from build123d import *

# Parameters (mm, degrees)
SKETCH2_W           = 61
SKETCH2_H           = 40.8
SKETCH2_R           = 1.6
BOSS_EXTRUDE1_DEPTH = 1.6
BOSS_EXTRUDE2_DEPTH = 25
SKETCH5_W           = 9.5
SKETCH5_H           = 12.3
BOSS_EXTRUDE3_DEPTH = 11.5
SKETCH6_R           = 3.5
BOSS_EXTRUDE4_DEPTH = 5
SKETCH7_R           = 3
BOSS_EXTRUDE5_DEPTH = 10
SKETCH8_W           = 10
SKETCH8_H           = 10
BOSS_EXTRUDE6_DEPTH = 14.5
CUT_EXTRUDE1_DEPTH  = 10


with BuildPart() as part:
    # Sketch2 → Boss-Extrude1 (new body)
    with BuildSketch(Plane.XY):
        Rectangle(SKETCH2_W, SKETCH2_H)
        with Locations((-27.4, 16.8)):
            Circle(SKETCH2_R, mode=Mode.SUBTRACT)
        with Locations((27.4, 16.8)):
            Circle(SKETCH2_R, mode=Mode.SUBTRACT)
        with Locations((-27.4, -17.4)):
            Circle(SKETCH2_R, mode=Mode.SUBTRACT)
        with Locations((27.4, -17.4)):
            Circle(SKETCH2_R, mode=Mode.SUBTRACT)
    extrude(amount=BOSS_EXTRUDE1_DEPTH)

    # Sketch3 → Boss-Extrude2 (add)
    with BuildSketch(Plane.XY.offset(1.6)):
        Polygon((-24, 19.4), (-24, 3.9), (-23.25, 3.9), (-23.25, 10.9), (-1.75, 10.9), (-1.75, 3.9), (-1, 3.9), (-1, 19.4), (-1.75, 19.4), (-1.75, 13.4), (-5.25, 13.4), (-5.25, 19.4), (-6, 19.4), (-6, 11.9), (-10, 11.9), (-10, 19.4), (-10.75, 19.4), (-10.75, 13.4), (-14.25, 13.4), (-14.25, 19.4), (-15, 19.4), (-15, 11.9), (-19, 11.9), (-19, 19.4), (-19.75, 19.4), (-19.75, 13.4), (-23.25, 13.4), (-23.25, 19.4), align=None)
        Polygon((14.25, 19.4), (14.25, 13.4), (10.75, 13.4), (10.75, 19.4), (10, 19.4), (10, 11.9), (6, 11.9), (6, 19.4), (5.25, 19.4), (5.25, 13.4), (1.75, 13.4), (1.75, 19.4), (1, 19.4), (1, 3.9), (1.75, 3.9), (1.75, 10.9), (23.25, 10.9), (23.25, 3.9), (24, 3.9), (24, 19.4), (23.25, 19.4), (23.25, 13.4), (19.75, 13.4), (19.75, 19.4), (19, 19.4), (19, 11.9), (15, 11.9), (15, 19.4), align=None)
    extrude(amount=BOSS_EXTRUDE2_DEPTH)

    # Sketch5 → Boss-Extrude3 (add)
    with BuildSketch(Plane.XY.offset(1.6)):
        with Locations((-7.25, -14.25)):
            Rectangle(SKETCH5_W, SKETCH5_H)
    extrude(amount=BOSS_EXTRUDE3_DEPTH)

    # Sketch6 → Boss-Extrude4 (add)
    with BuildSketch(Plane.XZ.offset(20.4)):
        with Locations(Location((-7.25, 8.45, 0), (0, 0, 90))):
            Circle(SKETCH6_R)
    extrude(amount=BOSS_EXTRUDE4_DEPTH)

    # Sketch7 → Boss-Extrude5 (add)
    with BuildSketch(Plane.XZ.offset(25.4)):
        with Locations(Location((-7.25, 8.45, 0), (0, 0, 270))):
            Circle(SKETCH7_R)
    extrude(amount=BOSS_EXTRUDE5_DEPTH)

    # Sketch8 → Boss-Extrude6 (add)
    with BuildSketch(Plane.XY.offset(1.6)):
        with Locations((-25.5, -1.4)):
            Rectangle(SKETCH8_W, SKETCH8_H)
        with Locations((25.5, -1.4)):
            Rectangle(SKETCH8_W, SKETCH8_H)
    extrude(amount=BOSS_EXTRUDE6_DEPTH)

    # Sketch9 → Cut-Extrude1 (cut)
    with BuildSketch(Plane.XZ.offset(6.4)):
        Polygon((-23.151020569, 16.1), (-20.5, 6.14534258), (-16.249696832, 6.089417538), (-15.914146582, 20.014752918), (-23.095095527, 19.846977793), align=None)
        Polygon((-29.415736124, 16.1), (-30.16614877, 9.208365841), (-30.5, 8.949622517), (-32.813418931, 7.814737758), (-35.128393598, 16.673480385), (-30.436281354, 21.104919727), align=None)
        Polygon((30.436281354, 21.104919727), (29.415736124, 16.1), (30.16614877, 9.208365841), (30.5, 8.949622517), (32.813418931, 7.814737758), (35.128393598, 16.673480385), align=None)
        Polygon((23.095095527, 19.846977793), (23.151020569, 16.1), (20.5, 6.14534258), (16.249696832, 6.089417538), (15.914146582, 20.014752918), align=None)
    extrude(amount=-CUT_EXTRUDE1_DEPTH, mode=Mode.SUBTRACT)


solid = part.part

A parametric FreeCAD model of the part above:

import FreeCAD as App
import Part
import Sketcher
Q = App.Units.Quantity


def add_polygon(sketch, points):
    """Adds a closed chain of lines whose ends are joined by coincident constraints."""
    first, n = sketch.GeometryCount, len(points)
    for a, b in zip(points, points[1:] + points[:1]):
        sketch.addGeometry(Part.LineSegment(App.Vector(*a, 0), App.Vector(*b, 0)), False)
    for i in range(n):
        sketch.addConstraint(Sketcher.Constraint("Coincident", first + i, 2, first + (i + 1) % n, 1))

doc = App.newDocument("Part")
body = doc.addObject("PartDesign::Body", "Body")

# Sketch on XY plane
sketch1 = doc.addObject("Sketcher::SketchObject", "Sketch")
body.addObject(sketch1)
sketch1.AttachmentSupport = (doc.XY_Plane, [""])
sketch1.MapMode = "FlatFace"
add_polygon(sketch1, [(-30.5, 20.4), (-30.5, -20.4), (30.5, -20.4), (30.5, 20.4)])  # lines 0-3
sketch1.addGeometry(Part.Circle(App.Vector(-27.4, -17.4, 0), App.Vector(0, 0, 1), 1.6), False)  # 4
sketch1.addGeometry(Part.Circle(App.Vector(27.4, -17.4, 0), App.Vector(0, 0, 1), 1.6), False)  # 5
sketch1.addGeometry(Part.Circle(App.Vector(-27.4, 16.8, 0), App.Vector(0, 0, 1), 1.6), False)  # 6
sketch1.addGeometry(Part.Circle(App.Vector(27.4, 16.8, 0), App.Vector(0, 0, 1), 1.6), False)  # 7
sketch1.addConstraint([
    Sketcher.Constraint("Vertical", 0),
    Sketcher.Constraint("Horizontal", 1),
    Sketcher.Constraint("Vertical", 2),
    Sketcher.Constraint("Horizontal", 3),
    Sketcher.Constraint("Equal", 4, 5),
    Sketcher.Constraint("Equal", 5, 6),
    Sketcher.Constraint("Equal", 6, 7),
    Sketcher.Constraint("Symmetric", 0, 2, 2, 2, -1, 1),
    Sketcher.Constraint("Symmetric", 4, 3, 5, 3, -2),
    Sketcher.Constraint("Symmetric", 6, 3, 7, 3, -2),
    Sketcher.Constraint("Vertical", 4, 3, 6, 3),
    Sketcher.Constraint("Diameter", 4, Q("3.2 mm")),
    Sketcher.Constraint("DistanceX", 1, 1, 1, 2, Q("61 mm")),
    Sketcher.Constraint("DistanceY", 0, 2, 0, 1, Q("40.8 mm")),
    Sketcher.Constraint("DistanceY", 0, 2, 4, 3, Q("3 mm")),
    Sketcher.Constraint("DistanceX", 4, 3, -1, 1, Q("27.4 mm")),
    Sketcher.Constraint("DistanceY", -1, 1, 6, 3, Q("16.8 mm")),
])
pad1 = doc.addObject("PartDesign::Pad", "Pad")
body.addObject(pad1)
pad1.Profile = sketch1
pad1.Length = 1.6

# Sketch on XY plane
sketch2 = doc.addObject("Sketcher::SketchObject", "Sketch001")
body.addObject(sketch2)
sketch2.AttachmentSupport = (doc.XY_Plane, [""])
sketch2.MapMode = "FlatFace"
sketch2.AttachmentOffset = App.Placement(App.Vector(0, 0, 1.6), App.Rotation())
add_polygon(sketch2, [(-24, 19.4), (-24, 3.9), (-23.2, 3.9), (-23.2, 10.9), (-1.8, 10.9), (-1.8, 3.9), (-1, 3.9), (-1, 19.4), (-1.8, 19.4), (-1.8, 13.4), (-5.2, 13.4), (-5.2, 19.4), (-6, 19.4), (-6, 11.9), (-10, 11.9), (-10, 19.4), (-10.8, 19.4), (-10.8, 13.4), (-14.2, 13.4), (-14.2, 19.4), (-15, 19.4), (-15, 11.9), (-19, 11.9), (-19, 19.4), (-19.8, 19.4), (-19.8, 13.4), (-23.2, 13.4), (-23.2, 19.4)])  # lines 0-27
add_polygon(sketch2, [(14.2, 19.4), (14.2, 13.4), (10.8, 13.4), (10.8, 19.4), (10, 19.4), (10, 11.9), (6, 11.9), (6, 19.4), (5.2, 19.4), (5.2, 13.4), (1.8, 13.4), (1.8, 19.4), (1, 19.4), (1, 3.9), (1.8, 3.9), (1.8, 10.9), (23.2, 10.9), (23.2, 3.9), (24, 3.9), (24, 19.4), (23.2, 19.4), (23.2, 13.4), (19.8, 13.4), (19.8, 19.4), (19, 19.4), (19, 11.9), (15, 11.9), (15, 19.4)])  # lines 28-55
sketch2.addConstraint([
    Sketcher.Constraint("Vertical", 0),
    Sketcher.Constraint("Horizontal", 1),
    Sketcher.Constraint("Vertical", 2),
    Sketcher.Constraint("Horizontal", 3),
    Sketcher.Constraint("Vertical", 4),
    Sketcher.Constraint("Horizontal", 5),
    Sketcher.Constraint("Vertical", 6),
    Sketcher.Constraint("Horizontal", 7),
    Sketcher.Constraint("Vertical", 8),
    Sketcher.Constraint("Horizontal", 9),
    Sketcher.Constraint("Vertical", 10),
    Sketcher.Constraint("Horizontal", 11),
    Sketcher.Constraint("Vertical", 12),
    Sketcher.Constraint("Horizontal", 13),
    Sketcher.Constraint("Vertical", 14),
    Sketcher.Constraint("Horizontal", 15),
    Sketcher.Constraint("Vertical", 16),
    Sketcher.Constraint("Horizontal", 17),
    Sketcher.Constraint("Vertical", 18),
    Sketcher.Constraint("Horizontal", 19),
    Sketcher.Constraint("Vertical", 20),
    Sketcher.Constraint("Horizontal", 21),
    Sketcher.Constraint("Vertical", 22),
    Sketcher.Constraint("Horizontal", 23),
    Sketcher.Constraint("Vertical", 24),
    Sketcher.Constraint("Horizontal", 25),
    Sketcher.Constraint("Vertical", 26),
    Sketcher.Constraint("Horizontal", 27),
    Sketcher.Constraint("Vertical", 28),
    Sketcher.Constraint("Horizontal", 29),
    Sketcher.Constraint("Vertical", 30),
    Sketcher.Constraint("Horizontal", 31),
    Sketcher.Constraint("Vertical", 32),
    Sketcher.Constraint("Horizontal", 33),
    Sketcher.Constraint("Vertical", 34),
    Sketcher.Constraint("Horizontal", 35),
    Sketcher.Constraint("Vertical", 36),
    Sketcher.Constraint("Horizontal", 37),
    Sketcher.Constraint("Vertical", 38),
    Sketcher.Constraint("Horizontal", 39),
    Sketcher.Constraint("Vertical", 40),
    Sketcher.Constraint("Horizontal", 41),
    Sketcher.Constraint("Vertical", 42),
    Sketcher.Constraint("Horizontal", 43),
    Sketcher.Constraint("Vertical", 44),
    Sketcher.Constraint("Horizontal", 45),
    Sketcher.Constraint("Vertical", 46),
    Sketcher.Constraint("Horizontal", 47),
    Sketcher.Constraint("Vertical", 48),
    Sketcher.Constraint("Horizontal", 49),
    Sketcher.Constraint("Vertical", 50),
    Sketcher.Constraint("Horizontal", 51),
    Sketcher.Constraint("Vertical", 52),
    Sketcher.Constraint("Horizontal", 53),
    Sketcher.Constraint("Vertical", 54),
    Sketcher.Constraint("Horizontal", 55),
    Sketcher.Constraint("Symmetric", 17, 2, 28, 2, -2),
    Sketcher.Constraint("Symmetric", 15, 2, 30, 2, -2),
    Sketcher.Constraint("Symmetric", 13, 2, 32, 2, -2),
    Sketcher.Constraint("Symmetric", 11, 2, 34, 2, -2),
    Sketcher.Constraint("Symmetric", 9, 2, 36, 2, -2),
    Sketcher.Constraint("Symmetric", 7, 2, 38, 2, -2),
    Sketcher.Constraint("Symmetric", 5, 2, 40, 2, -2),
    Sketcher.Constraint("Symmetric", 3, 2, 42, 2, -2),
    Sketcher.Constraint("Symmetric", 1, 2, 44, 2, -2),
    Sketcher.Constraint("Symmetric", 27, 2, 46, 2, -2),
    Sketcher.Constraint("Symmetric", 25, 2, 48, 2, -2),
    Sketcher.Constraint("Symmetric", 23, 2, 50, 2, -2),
    Sketcher.Constraint("Symmetric", 21, 2, 52, 2, -2),
    Sketcher.Constraint("Symmetric", 19, 2, 54, 2, -2),
    Sketcher.Constraint("Horizontal", 1, 2, 4, 2),
    Sketcher.Constraint("Horizontal", 7, 2, 10, 2),
    Sketcher.Constraint("Horizontal", 11, 2, 14, 2),
    Sketcher.Constraint("Horizontal", 9, 2, 16, 2),
    Sketcher.Constraint("Horizontal", 15, 2, 18, 2),
    Sketcher.Constraint("Horizontal", 13, 2, 20, 2),
    Sketcher.Constraint("Horizontal", 19, 2, 22, 2),
    Sketcher.Constraint("Horizontal", 17, 2, 24, 2),
    Sketcher.Constraint("Horizontal", 23, 2, 26, 2),
    Sketcher.Constraint("Vertical", 4, 2, 7, 2),
    Sketcher.Constraint("Vertical", 2, 2, 25, 2),
    Sketcher.Constraint("Equal", 1, 5),
    Sketcher.Constraint("Equal", 7, 11),
    Sketcher.Constraint("Equal", 11, 15),
    Sketcher.Constraint("Equal", 9, 17),
    Sketcher.Constraint("Equal", 15, 19),
    Sketcher.Constraint("Equal", 13, 21),
    Sketcher.Constraint("Equal", 19, 23),
    Sketcher.Constraint("Equal", 17, 25),
    Sketcher.Constraint("DistanceX", 13, 2, 13, 1, Q("4 mm")),
    Sketcher.Constraint("DistanceY", 2, 1, 2, 2, Q("7 mm")),
    Sketcher.Constraint("DistanceY", 8, 2, 8, 1, Q("6 mm")),
    Sketcher.Constraint("DistanceX", 3, 1, 3, 2, Q("21.5 mm")),
    Sketcher.Constraint("DistanceX", 9, 2, 9, 1, Q("3.5 mm")),
    Sketcher.Constraint("DistanceY", 0, 2, 0, 1, Q("15.5 mm")),
    Sketcher.Constraint("DistanceY", 12, 2, 12, 1, Q("7.5 mm")),
    Sketcher.Constraint("DistanceX", 0, 2, -1, 1, Q("24 mm")),
    Sketcher.Constraint("DistanceY", -1, 1, 0, 2, Q("3.9 mm")),
])
pad2 = doc.addObject("PartDesign::Pad", "Pad001")
body.addObject(pad2)
pad2.Profile = sketch2
pad2.Length = 25

# Sketch on XY plane
sketch3 = doc.addObject("Sketcher::SketchObject", "Sketch002")
body.addObject(sketch3)
sketch3.AttachmentSupport = (doc.XY_Plane, [""])
sketch3.MapMode = "FlatFace"
sketch3.AttachmentOffset = App.Placement(App.Vector(0, 0, 1.6), App.Rotation())
add_polygon(sketch3, [(-12, -8), (-12, -20), (-2, -20), (-2, -8)])  # lines 0-3
sketch3.addConstraint([
    Sketcher.Constraint("Vertical", 0),
    Sketcher.Constraint("Horizontal", 1),
    Sketcher.Constraint("Vertical", 2),
    Sketcher.Constraint("Horizontal", 3),
    Sketcher.Constraint("DistanceX", 1, 1, 1, 2, Q("9.5 mm")),
    Sketcher.Constraint("DistanceY", 0, 2, 0, 1, Q("12.3 mm")),
    Sketcher.Constraint("DistanceX", 0, 2, -1, 1, Q("12 mm")),
    Sketcher.Constraint("DistanceY", 0, 2, -1, 1, Q("20.4 mm")),
])
pad3 = doc.addObject("PartDesign::Pad", "Pad002")
body.addObject(pad3)
pad3.Profile = sketch3
pad3.Length = 11.5

# Sketch on XZ plane
sketch4 = doc.addObject("Sketcher::SketchObject", "Sketch003")
body.addObject(sketch4)
sketch4.AttachmentSupport = (doc.XZ_Plane, [""])
sketch4.MapMode = "FlatFace"
sketch4.AttachmentOffset = App.Placement(App.Vector(0, 0, 20.4), App.Rotation())
sketch4.addGeometry(Part.Circle(App.Vector(-7.2, 8.4, 0), App.Vector(0, 0, 1), 3.5), False)
sketch4.addConstraint([
    Sketcher.Constraint("Diameter", 0, Q("7 mm")),
    Sketcher.Constraint("DistanceX", 0, 3, -1, 1, Q("7.25 mm")),
    Sketcher.Constraint("DistanceY", -1, 1, 0, 3, Q("8.45 mm")),
])
pad4 = doc.addObject("PartDesign::Pad", "Pad003")
body.addObject(pad4)
pad4.Profile = sketch4
pad4.Length = 5

# Sketch on XZ plane
sketch5 = doc.addObject("Sketcher::SketchObject", "Sketch004")
body.addObject(sketch5)
sketch5.AttachmentSupport = (doc.XZ_Plane, [""])
sketch5.MapMode = "FlatFace"
sketch5.AttachmentOffset = App.Placement(App.Vector(0, 0, 25.4), App.Rotation())
sketch5.addGeometry(Part.Circle(App.Vector(-7.2, 8.4, 0), App.Vector(0, 0, 1), 3), False)
sketch5.addConstraint([
    Sketcher.Constraint("Diameter", 0, Q("6 mm")),
    Sketcher.Constraint("DistanceX", 0, 3, -1, 1, Q("7.25 mm")),
    Sketcher.Constraint("DistanceY", -1, 1, 0, 3, Q("8.45 mm")),
])
pad5 = doc.addObject("PartDesign::Pad", "Pad004")
body.addObject(pad5)
pad5.Profile = sketch5
pad5.Length = 10

# Sketch on XY plane
sketch6 = doc.addObject("Sketcher::SketchObject", "Sketch005")
body.addObject(sketch6)
sketch6.AttachmentSupport = (doc.XY_Plane, [""])
sketch6.MapMode = "FlatFace"
sketch6.AttachmentOffset = App.Placement(App.Vector(0, 0, 1.6), App.Rotation())
add_polygon(sketch6, [(-30, 4), (-30, -6), (-20, -6), (-20, 4)])  # lines 0-3
add_polygon(sketch6, [(20, 4), (20, -6), (30, -6), (30, 4)])  # lines 4-7
sketch6.addConstraint([
    Sketcher.Constraint("Vertical", 0),
    Sketcher.Constraint("Horizontal", 1),
    Sketcher.Constraint("Vertical", 2),
    Sketcher.Constraint("Horizontal", 3),
    Sketcher.Constraint("Vertical", 4),
    Sketcher.Constraint("Horizontal", 5),
    Sketcher.Constraint("Vertical", 6),
    Sketcher.Constraint("Horizontal", 7),
    Sketcher.Constraint("Symmetric", 1, 2, 4, 2, -2),
    Sketcher.Constraint("Symmetric", 3, 2, 6, 2, -2),
    Sketcher.Constraint("Equal", 7, 0),
    Sketcher.Constraint("DistanceX", 1, 1, 1, 2, Q("10 mm")),
    Sketcher.Constraint("DistanceX", 1, 2, 4, 2, Q("41 mm")),
    Sketcher.Constraint("DistanceY", 0, 2, -1, 1, Q("6.4 mm")),
])
pad6 = doc.addObject("PartDesign::Pad", "Pad005")
body.addObject(pad6)
pad6.Profile = sketch6
pad6.Length = 14.5

# Sketch on XZ plane
sketch7 = doc.addObject("Sketcher::SketchObject", "Sketch006")
body.addObject(sketch7)
sketch7.AttachmentSupport = (doc.XZ_Plane, [""])
sketch7.MapMode = "FlatFace"
sketch7.AttachmentOffset = App.Placement(App.Vector(0, 0, 6.4), App.Rotation())
add_polygon(sketch7, [(-23.15, 16.1), (-20.5, 6.15), (-16.25, 6.09), (-15.91, 20.01), (-23.1, 19.85)])  # lines 0-4
add_polygon(sketch7, [(-30.17, 9.21), (-29.42, 16.1), (-30.44, 21.1), (-35.13, 16.67), (-32.81, 7.81), (-30.5, 8.95)])  # lines 5-10
add_polygon(sketch7, [(30.44, 21.1), (29.42, 16.1), (30.17, 9.21), (30.5, 8.95), (32.81, 7.81), (35.13, 16.67)])  # lines 11-16
add_polygon(sketch7, [(23.15, 16.1), (23.1, 19.85), (15.91, 20.01), (16.25, 6.09), (20.5, 6.15)])  # lines 17-21
sketch7.addConstraint([
    Sketcher.Constraint("Symmetric", 5, 2, 11, 2, -2),
    Sketcher.Constraint("Symmetric", 10, 2, 12, 2, -2),
    Sketcher.Constraint("Symmetric", 9, 2, 13, 2, -2),
    Sketcher.Constraint("Symmetric", 8, 2, 14, 2, -2),
    Sketcher.Constraint("Symmetric", 7, 2, 15, 2, -2),
    Sketcher.Constraint("Symmetric", 6, 2, 16, 2, -2),
    Sketcher.Constraint("Symmetric", 3, 2, 17, 2, -2),
    Sketcher.Constraint("Symmetric", 2, 2, 18, 2, -2),
    Sketcher.Constraint("Symmetric", 1, 2, 19, 2, -2),
    Sketcher.Constraint("Symmetric", 0, 2, 20, 2, -2),
    Sketcher.Constraint("Symmetric", 4, 2, 21, 2, -2),
    Sketcher.Constraint("Horizontal", 4, 2, 5, 2),
    Sketcher.Constraint("DistanceX", 9, 2, 0, 2, Q("10 mm")),
    Sketcher.Constraint("DistanceX", 0, 2, 13, 2, Q("51 mm")),
    Sketcher.Constraint("DistanceY", -1, 1, 4, 2, Q("16.1 mm")),
    Sketcher.Constraint("DistanceX", 3, 2, 1, 2, Q("6.845399 mm")),
    Sketcher.Constraint("DistanceX", 7, 2, 3, 2, Q("12.033298 mm")),
    Sketcher.Constraint("DistanceX", 8, 2, 4, 2, Q("9.662398 mm")),
    Sketcher.Constraint("Distance", 1, Q("4.250671 mm")),
    Sketcher.Constraint("Distance", 3, Q("7.182909 mm")),
    Sketcher.Constraint("Distance", 5, Q("6.932369 mm")),
    Sketcher.Constraint("Distance", 6, Q("5.107909 mm")),
    Sketcher.Constraint("Distance", 10, Q("0.42238 mm")),
    Sketcher.Constraint("DistanceX", 4, 2, -1, 1, Q("23.151021 mm")),
    Sketcher.Constraint("DistanceX", 6, 2, -1, 1, Q("30.436281 mm")),
    Sketcher.Constraint("DistanceY", -1, 1, 6, 2, Q("21.10492 mm")),
    Sketcher.Constraint("DistanceY", -1, 1, 7, 2, Q("16.67348 mm")),
    Sketcher.Constraint("DistanceX", 10, 2, -1, 1, Q("30.166149 mm")),
    Sketcher.Constraint("DistanceX", 1, 2, 2, 2, Q("0.33555 mm")),
    Sketcher.Constraint("DistanceY", 0, 2, 2, 2, Q("13.86941 mm")),
    Sketcher.Constraint("DistanceY", 1, 2, 3, 2, Q("13.75756 mm")),
    Sketcher.Constraint("DistanceY", 3, 2, 6, 2, Q("1.257942 mm")),
    Sketcher.Constraint("DistanceY", 8, 2, 6, 2, Q("13.290182 mm")),
])
pocket1 = doc.addObject("PartDesign::Pocket", "Pocket")
body.addObject(pocket1)
pocket1.Profile = sketch7
pocket1.Length = 10

doc.recompute()
